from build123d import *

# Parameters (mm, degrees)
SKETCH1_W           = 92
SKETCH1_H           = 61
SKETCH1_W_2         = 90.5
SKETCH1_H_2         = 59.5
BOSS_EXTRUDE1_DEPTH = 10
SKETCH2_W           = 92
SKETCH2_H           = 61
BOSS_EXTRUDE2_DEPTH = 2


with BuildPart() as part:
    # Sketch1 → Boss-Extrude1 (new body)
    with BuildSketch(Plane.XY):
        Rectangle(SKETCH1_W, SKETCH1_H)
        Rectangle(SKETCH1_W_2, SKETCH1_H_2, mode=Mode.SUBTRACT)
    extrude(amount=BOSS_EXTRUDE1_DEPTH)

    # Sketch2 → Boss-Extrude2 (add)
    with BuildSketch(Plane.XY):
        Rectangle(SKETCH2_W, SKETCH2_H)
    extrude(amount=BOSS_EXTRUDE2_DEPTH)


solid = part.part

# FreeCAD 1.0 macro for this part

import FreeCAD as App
import Part
import Sketcher
from FreeCAD import Vector
Q = App.Units.Quantity


def add_polygon(sketch, points):
    """Adds a closed chain of lines whose ends are joined by coincident constraints."""
    first, n = sketch.GeometryCount, len(points)
    for a, b in zip(points, points[1:] + points[:1]):
        sketch.addGeometry(Part.LineSegment(App.Vector(*a, 0), App.Vector(*b, 0)), False)
    for i in range(n):
        sketch.addConstraint(Sketcher.Constraint("Coincident", first + i, 2, first + (i + 1) % n, 1))

doc = App.newDocument("Part")
params = doc.addObject("Spreadsheet::Sheet", "Params")
for row, (alias, value) in enumerate([
    ("sketch1_width", "92 mm"),
    ("sketch1_height", "61 mm"),
    ("sketch1_width2", "90.5 mm"),
    ("sketch1_height2", "59.5 mm"),
    ("pad1_length", "10 mm"),
    ("sketch2_width", "92 mm"),
    ("sketch2_height", "61 mm"),
    ("pad2_length", "2 mm"),
], start=1):
    params.set(f"A{row}", alias)
    params.set(f"B{row}", "=" + value)
    params.setAlias(f"B{row}", alias)

body = doc.addObject("PartDesign::Body", "Body")

# Sketch on XY plane
sketch1 = body.newObject("Sketcher::SketchObject", "Sketch")
sketch1.AttachmentSupport = (doc.getObject("XY_Plane"), [""])
sketch1.MapMode = "FlatFace"
add_polygon(sketch1, [(-46, 30), (-46, -30), (46, -30), (46, 30)])  # lines 0-3
add_polygon(sketch1, [(45, -30), (-45, -30), (-45, 30), (45, 30)])  # lines 4-7
sketch1.addConstraint([
    Sketcher.Constraint("Vertical", 0),
    Sketcher.Constraint("Horizontal", 1),
    Sketcher.Constraint("Vertical", 2),
    Sketcher.Constraint("Horizontal", 3),
    Sketcher.Constraint("Horizontal", 4),
    Sketcher.Constraint("Vertical", 5),
    Sketcher.Constraint("Horizontal", 6),
    Sketcher.Constraint("Vertical", 7),
    Sketcher.Constraint("Symmetric", 0, 2, 2, 2, -1, 1),
    Sketcher.Constraint("Symmetric", 4, 2, 6, 2, -1, 1),
    Sketcher.Constraint("DistanceX", 1, 1, 1, 2, Q("92 mm")),
    Sketcher.Constraint("DistanceY", 0, 2, 0, 1, Q("61 mm")),
    Sketcher.Constraint("DistanceX", 4, 2, 4, 1, Q("90.5 mm")),
    Sketcher.Constraint("DistanceY", 5, 1, 5, 2, Q("59.5 mm")),
])
sketch1.setExpression("Constraints[18]", "Params.sketch1_width")
sketch1.setExpression("Constraints[19]", "Params.sketch1_height")
sketch1.setExpression("Constraints[20]", "Params.sketch1_width2")
sketch1.setExpression("Constraints[21]", "Params.sketch1_height2")
pad1 = body.newObject("PartDesign::Pad", "Pad")
pad1.Profile = sketch1
pad1.setExpression("Length", "Params.pad1_length")

# Sketch on XY plane
sketch2 = body.newObject("Sketcher::SketchObject", "Sketch001")
sketch2.AttachmentSupport = (doc.getObject("XY_Plane"), [""])
sketch2.MapMode = "FlatFace"
add_polygon(sketch2, [(-46, 30), (-46, -30), (46, -30), (46, 30)])  # lines 0-3
sketch2.addConstraint([
    Sketcher.Constraint("Vertical", 0),
    Sketcher.Constraint("Horizontal", 1),
    Sketcher.Constraint("Vertical", 2),
    Sketcher.Constraint("Horizontal", 3),
    Sketcher.Constraint("Symmetric", 0, 2, 2, 2, -1, 1),
    Sketcher.Constraint("DistanceX", 1, 1, 1, 2, Q("92 mm")),
    Sketcher.Constraint("DistanceY", 0, 2, 0, 1, Q("61 mm")),
])
sketch2.setExpression("Constraints[9]", "Params.sketch2_width")
sketch2.setExpression("Constraints[10]", "Params.sketch2_height")
pad2 = body.newObject("PartDesign::Pad", "Pad001")
pad2.Profile = sketch2
pad2.setExpression("Length", "Params.pad2_length")

doc.recompute()
